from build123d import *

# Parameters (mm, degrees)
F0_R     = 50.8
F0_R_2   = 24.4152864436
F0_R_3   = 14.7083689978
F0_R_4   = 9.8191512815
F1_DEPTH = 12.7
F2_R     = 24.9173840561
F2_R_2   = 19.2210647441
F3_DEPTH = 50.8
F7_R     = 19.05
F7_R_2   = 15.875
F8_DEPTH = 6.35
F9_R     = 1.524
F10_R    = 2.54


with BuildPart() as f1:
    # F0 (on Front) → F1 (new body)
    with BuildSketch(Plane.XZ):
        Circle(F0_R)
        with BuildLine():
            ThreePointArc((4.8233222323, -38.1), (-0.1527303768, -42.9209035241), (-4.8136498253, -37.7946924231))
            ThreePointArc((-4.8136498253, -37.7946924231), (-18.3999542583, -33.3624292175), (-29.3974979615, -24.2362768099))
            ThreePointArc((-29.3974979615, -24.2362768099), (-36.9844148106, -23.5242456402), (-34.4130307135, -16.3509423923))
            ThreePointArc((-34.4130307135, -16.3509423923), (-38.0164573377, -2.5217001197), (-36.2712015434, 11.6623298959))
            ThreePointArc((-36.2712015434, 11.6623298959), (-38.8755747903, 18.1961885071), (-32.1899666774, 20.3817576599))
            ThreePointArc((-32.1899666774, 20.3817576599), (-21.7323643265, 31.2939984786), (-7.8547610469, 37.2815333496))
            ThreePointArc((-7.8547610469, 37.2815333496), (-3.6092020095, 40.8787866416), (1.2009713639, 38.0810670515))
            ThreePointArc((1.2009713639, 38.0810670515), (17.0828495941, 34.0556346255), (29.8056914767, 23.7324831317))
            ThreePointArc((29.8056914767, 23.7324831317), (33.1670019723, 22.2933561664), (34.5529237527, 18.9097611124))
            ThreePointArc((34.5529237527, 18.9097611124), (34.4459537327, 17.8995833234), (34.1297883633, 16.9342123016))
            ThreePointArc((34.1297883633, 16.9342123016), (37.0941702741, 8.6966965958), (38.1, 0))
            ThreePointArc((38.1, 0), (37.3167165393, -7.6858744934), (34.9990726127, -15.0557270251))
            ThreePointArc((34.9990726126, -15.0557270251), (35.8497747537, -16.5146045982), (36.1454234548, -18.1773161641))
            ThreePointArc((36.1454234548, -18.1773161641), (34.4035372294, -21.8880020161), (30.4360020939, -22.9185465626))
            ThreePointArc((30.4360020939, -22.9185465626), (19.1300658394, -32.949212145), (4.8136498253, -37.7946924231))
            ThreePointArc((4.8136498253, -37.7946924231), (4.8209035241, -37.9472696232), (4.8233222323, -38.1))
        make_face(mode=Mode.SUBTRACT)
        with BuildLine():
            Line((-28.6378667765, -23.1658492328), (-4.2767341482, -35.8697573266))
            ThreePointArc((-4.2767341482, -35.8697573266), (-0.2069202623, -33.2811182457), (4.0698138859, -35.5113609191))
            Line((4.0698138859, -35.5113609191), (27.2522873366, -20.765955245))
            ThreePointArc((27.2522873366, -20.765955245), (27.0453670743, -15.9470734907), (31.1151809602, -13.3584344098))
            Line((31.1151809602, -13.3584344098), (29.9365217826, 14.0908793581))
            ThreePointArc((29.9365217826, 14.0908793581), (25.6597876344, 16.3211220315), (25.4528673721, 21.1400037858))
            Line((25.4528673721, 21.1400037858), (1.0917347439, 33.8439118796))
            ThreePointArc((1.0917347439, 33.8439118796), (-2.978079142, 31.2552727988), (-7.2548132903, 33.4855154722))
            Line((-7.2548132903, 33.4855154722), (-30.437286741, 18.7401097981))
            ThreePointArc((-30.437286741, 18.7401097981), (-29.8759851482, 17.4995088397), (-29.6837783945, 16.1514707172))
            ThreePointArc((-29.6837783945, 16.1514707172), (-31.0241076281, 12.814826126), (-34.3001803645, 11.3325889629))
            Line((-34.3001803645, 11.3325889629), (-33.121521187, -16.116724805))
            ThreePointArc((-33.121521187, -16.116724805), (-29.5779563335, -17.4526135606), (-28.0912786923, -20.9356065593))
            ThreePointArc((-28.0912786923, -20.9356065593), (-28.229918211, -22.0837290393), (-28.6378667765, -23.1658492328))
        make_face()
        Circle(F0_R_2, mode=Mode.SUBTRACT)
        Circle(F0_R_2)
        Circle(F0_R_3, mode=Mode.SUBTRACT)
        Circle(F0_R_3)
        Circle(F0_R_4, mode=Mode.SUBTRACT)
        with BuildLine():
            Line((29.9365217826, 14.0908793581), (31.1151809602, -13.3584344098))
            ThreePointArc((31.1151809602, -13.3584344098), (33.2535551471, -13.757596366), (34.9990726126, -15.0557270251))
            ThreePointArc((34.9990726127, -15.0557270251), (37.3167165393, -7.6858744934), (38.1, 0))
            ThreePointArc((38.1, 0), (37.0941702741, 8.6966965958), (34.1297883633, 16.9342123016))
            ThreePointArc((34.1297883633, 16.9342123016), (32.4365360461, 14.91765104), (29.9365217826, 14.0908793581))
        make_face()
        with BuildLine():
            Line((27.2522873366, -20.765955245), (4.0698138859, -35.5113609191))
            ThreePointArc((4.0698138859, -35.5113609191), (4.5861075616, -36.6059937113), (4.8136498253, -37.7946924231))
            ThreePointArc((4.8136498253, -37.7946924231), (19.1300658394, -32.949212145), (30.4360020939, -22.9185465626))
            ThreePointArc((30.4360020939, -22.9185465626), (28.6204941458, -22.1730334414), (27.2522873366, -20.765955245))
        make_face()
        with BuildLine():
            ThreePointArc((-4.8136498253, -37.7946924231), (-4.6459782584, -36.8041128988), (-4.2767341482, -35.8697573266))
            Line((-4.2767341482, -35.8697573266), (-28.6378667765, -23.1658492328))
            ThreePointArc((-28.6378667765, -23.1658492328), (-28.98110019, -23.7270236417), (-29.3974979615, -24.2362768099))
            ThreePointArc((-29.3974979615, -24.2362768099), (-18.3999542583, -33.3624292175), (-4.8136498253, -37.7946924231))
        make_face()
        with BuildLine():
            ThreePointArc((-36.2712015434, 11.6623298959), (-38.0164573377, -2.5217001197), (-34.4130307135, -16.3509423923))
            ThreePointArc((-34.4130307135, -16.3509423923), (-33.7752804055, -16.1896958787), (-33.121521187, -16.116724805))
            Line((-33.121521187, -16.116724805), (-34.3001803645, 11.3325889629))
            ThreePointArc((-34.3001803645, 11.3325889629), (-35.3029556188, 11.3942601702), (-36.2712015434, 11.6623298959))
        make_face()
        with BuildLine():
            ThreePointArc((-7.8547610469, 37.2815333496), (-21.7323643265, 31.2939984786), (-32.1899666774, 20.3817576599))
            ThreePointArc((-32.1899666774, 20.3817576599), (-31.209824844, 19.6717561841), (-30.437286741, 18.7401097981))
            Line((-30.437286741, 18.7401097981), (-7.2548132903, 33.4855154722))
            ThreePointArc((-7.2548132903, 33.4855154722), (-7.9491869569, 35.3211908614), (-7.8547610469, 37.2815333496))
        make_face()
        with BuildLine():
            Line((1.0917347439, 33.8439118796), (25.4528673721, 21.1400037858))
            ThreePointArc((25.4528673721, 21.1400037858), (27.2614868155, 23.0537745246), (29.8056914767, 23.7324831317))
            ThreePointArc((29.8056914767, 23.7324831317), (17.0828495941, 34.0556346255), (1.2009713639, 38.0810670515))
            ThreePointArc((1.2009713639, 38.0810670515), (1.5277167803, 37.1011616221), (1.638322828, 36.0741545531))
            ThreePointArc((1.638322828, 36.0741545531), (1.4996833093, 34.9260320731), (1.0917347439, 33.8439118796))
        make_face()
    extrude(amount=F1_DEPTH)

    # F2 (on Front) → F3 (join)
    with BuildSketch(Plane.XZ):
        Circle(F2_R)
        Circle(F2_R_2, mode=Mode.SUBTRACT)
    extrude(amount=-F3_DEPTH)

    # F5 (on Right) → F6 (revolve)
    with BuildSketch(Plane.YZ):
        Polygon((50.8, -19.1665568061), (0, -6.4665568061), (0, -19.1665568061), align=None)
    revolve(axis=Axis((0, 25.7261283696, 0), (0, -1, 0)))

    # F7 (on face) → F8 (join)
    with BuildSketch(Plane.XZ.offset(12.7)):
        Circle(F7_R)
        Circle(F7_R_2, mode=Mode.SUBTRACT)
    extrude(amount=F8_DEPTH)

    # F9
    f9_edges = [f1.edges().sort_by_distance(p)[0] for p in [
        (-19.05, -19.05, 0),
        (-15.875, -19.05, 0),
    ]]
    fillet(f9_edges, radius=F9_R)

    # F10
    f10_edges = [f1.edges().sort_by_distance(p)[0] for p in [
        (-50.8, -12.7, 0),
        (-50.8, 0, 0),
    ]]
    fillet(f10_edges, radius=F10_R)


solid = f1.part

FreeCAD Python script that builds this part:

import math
import FreeCAD as App
import Part
import Sketcher
from FreeCAD import Vector
Q = App.Units.Quantity


def edges_at(feature, points):
    """Names of the edges that pass closest to the given points."""
    edges = feature.Shape.Edges
    near = lambda p: min(range(len(edges)), key=lambda i: edges[i].distToShape(Part.Vertex(*p))[0])
    return sorted({f"Edge{near(p) + 1}" for p in points})

doc = App.newDocument("Part")
body = doc.addObject("PartDesign::Body", "Body")

sketch1 = doc.addObject("Sketcher::SketchObject", "Sketch")
body.addObject(sketch1)
sketch1.AttachmentSupport = (doc.XZ_Plane, [""])
sketch1.MapMode = "FlatFace"
sketch1.addGeometry(Part.Circle(Vector(0, 0, 0), Vector(0, 0, 1), 50.8), False)
sketch1.addGeometry(Part.ArcOfCircle(Part.Circle(Vector(0, -38.1, 0), Vector(0, 0, 1), 4.823322), math.radians(0), math.radians(3.629145)), False)
sketch1.addGeometry(Part.ArcOfCircle(Part.Circle(Vector(0, -38.1, 0), Vector(0, 0, 1), 4.823322), math.radians(176.370855), math.radians(360)), False)
sketch1.addGeometry(Part.ArcOfCircle(Part.Circle(Vector(0, -38.1, 0), Vector(0, 0, 1), 4.823322), math.radians(152.45874), math.radians(176.370855)), False)
sketch1.addGeometry(Part.ArcOfCircle(Part.Circle(Vector(0, -38.1, 0), Vector(0, 0, 1), 4.823322), math.radians(32.45874), math.radians(152.45874)), False)
sketch1.addGeometry(Part.ArcOfCircle(Part.Circle(Vector(0, -38.1, 0), Vector(0, 0, 1), 4.823322), math.radians(3.629145), math.radians(32.45874)), False)
sketch1.addGeometry(Part.ArcOfCircle(Part.Circle(Vector(-32.914601, -20.935607, 0), Vector(0, 0, 1), 4.823322), math.radians(108.099216), math.radians(316.818265)), False)
sketch1.addGeometry(Part.ArcOfCircle(Part.Circle(Vector(-32.914601, -20.935607, 0), Vector(0, 0, 1), 4.823322), math.radians(92.45874), math.radians(108.099216)), False)
sketch1.addGeometry(Part.ArcOfCircle(Part.Circle(Vector(-32.914601, -20.935607, 0), Vector(0, 0, 1), 4.823322), math.radians(0), math.radians(92.45874)), False)
sketch1.addGeometry(Part.ArcOfCircle(Part.Circle(Vector(-32.914601, -20.935607, 0), Vector(0, 0, 1), 4.823322), math.radians(-27.54126), math.radians(0)), False)
sketch1.addGeometry(Part.ArcOfCircle(Part.Circle(Vector(-32.914601, -20.935607, 0), Vector(0, 0, 1), 4.823322), math.radians(-43.181735), math.radians(-27.54126)), False)
sketch1.addGeometry(Part.ArcOfCircle(Part.Circle(Vector(-34.507101, 16.151471, 0), Vector(0, 0, 1), 4.823322), math.radians(61.288335), math.radians(248.546626)), False)
sketch1.addGeometry(Part.ArcOfCircle(Part.Circle(Vector(-34.507101, 16.151471, 0), Vector(0, 0, 1), 4.823322), math.radians(32.45874), math.radians(61.288335)), False)
sketch1.addGeometry(Part.ArcOfCircle(Part.Circle(Vector(-34.507101, 16.151471, 0), Vector(0, 0, 1), 4.823322), math.radians(0), math.radians(32.45874)), False)
sketch1.addGeometry(Part.ArcOfCircle(Part.Circle(Vector(-34.507101, 16.151471, 0), Vector(0, 0, 1), 4.823322), math.radians(-87.54126), math.radians(0)), False)
sketch1.addGeometry(Part.ArcOfCircle(Part.Circle(Vector(-34.507101, 16.151471, 0), Vector(0, 0, 1), 4.823322), math.radians(-111.453374), math.radians(-87.54126)), False)
sketch1.addGeometry(Part.ArcOfCircle(Part.Circle(Vector(-3.184999, 36.074155, 0), Vector(0, 0, 1), 4.823322), math.radians(24.587669), math.radians(165.503492)), False)
sketch1.addGeometry(Part.ArcOfCircle(Part.Circle(Vector(-3.184999, 36.074155, 0), Vector(0, 0, 1), 4.823322), math.radians(0), math.radians(24.587669)), False)
sketch1.addGeometry(Part.ArcOfCircle(Part.Circle(Vector(-3.184999, 36.074155, 0), Vector(0, 0, 1), 4.823322), math.radians(-27.54126), math.radians(0)), False)
sketch1.addGeometry(Part.ArcOfCircle(Part.Circle(Vector(-3.184999, 36.074155, 0), Vector(0, 0, 1), 4.823322), math.radians(-147.54126), math.radians(-27.54126)), False)
sketch1.addGeometry(Part.ArcOfCircle(Part.Circle(Vector(-3.184999, 36.074155, 0), Vector(0, 0, 1), 4.823322), math.radians(165.503492), math.radians(212.45874)), False)
sketch1.addGeometry(Part.ArcOfCircle(Part.Circle(Vector(29.729602, 18.909761, 0), Vector(0, 0, 1), 4.823322), math.radians(0), math.radians(89.096097)), False)
sketch1.addGeometry(Part.ArcOfCircle(Part.Circle(Vector(29.729602, 18.909761, 0), Vector(0, 0, 1), 4.823322), math.radians(-24.178616), math.radians(0)), False)
sketch1.addGeometry(Part.ArcOfCircle(Part.Circle(Vector(29.729602, 18.909761, 0), Vector(0, 0, 1), 4.823322), math.radians(-87.54126), math.radians(-24.178616)), False)
sketch1.addGeometry(Part.ArcOfCircle(Part.Circle(Vector(29.729602, 18.909761, 0), Vector(0, 0, 1), 4.823322), math.radians(89.096097), math.radians(272.45874)), False)
sketch1.addGeometry(Part.ArcOfCircle(Part.Circle(Vector(31.322101, -18.177316, 0), Vector(0, 0, 1), 4.823322), math.radians(92.45874), math.radians(212.45874)), False)
sketch1.addGeometry(Part.ArcOfCircle(Part.Circle(Vector(31.322101, -18.177316, 0), Vector(0, 0, 1), 4.823322), math.radians(40.329812), math.radians(92.45874)), False)
sketch1.addGeometry(Part.ArcOfCircle(Part.Circle(Vector(31.322101, -18.177316, 0), Vector(0, 0, 1), 4.823322), math.radians(0), math.radians(40.329812)), False)
sketch1.addGeometry(Part.ArcOfCircle(Part.Circle(Vector(31.322101, -18.177316, 0), Vector(0, 0, 1), 4.823322), math.radians(-100.586012), math.radians(0)), False)
sketch1.addGeometry(Part.ArcOfCircle(Part.Circle(Vector(31.322101, -18.177316, 0), Vector(0, 0, 1), 4.823322), math.radians(-147.54126), math.radians(-100.586012)), False)
sketch1.addGeometry(Part.Circle(Vector(0, 0, 0), Vector(0, 0, 1), 9.819151), False)
sketch1.addConstraint(Sketcher.Constraint("Tangent", 1, 1, 2, 2))
sketch1.addConstraint(Sketcher.Constraint("Tangent", 2, 1, 3, 2))
sketch1.addConstraint(Sketcher.Constraint("Tangent", 3, 1, 4, 2))
sketch1.addConstraint(Sketcher.Constraint("Tangent", 4, 1, 5, 2))
sketch1.addConstraint(Sketcher.Constraint("Tangent", 5, 1, 1, 2))
sketch1.addConstraint(Sketcher.Constraint("Tangent", 6, 1, 7, 2))
sketch1.addConstraint(Sketcher.Constraint("Tangent", 7, 1, 8, 2))
sketch1.addConstraint(Sketcher.Constraint("Tangent", 8, 1, 9, 2))
sketch1.addConstraint(Sketcher.Constraint("Tangent", 9, 1, 10, 2))
sketch1.addConstraint(Sketcher.Constraint("Tangent", 10, 1, 6, 2))
sketch1.addConstraint(Sketcher.Constraint("Tangent", 11, 1, 12, 2))
sketch1.addConstraint(Sketcher.Constraint("Tangent", 12, 1, 13, 2))
sketch1.addConstraint(Sketcher.Constraint("Tangent", 13, 1, 14, 2))
sketch1.addConstraint(Sketcher.Constraint("Tangent", 14, 1, 15, 2))
sketch1.addConstraint(Sketcher.Constraint("Tangent", 15, 1, 11, 2))
sketch1.addConstraint(Sketcher.Constraint("Tangent", 16, 1, 17, 2))
sketch1.addConstraint(Sketcher.Constraint("Tangent", 17, 1, 18, 2))
sketch1.addConstraint(Sketcher.Constraint("Tangent", 18, 1, 19, 2))
sketch1.addConstraint(Sketcher.Constraint("Tangent", 19, 1, 20, 2))
sketch1.addConstraint(Sketcher.Constraint("Tangent", 20, 1, 16, 2))
sketch1.addConstraint(Sketcher.Constraint("Tangent", 21, 1, 22, 2))
sketch1.addConstraint(Sketcher.Constraint("Tangent", 22, 1, 23, 2))
sketch1.addConstraint(Sketcher.Constraint("Tangent", 23, 1, 24, 2))
sketch1.addConstraint(Sketcher.Constraint("Tangent", 24, 1, 21, 2))
sketch1.addConstraint(Sketcher.Constraint("Tangent", 25, 1, 26, 2))
sketch1.addConstraint(Sketcher.Constraint("Tangent", 26, 1, 27, 2))
sketch1.addConstraint(Sketcher.Constraint("Tangent", 27, 1, 28, 2))
sketch1.addConstraint(Sketcher.Constraint("Tangent", 28, 1, 29, 2))
sketch1.addConstraint(Sketcher.Constraint("Tangent", 29, 1, 25, 2))
sketch1.addConstraint(Sketcher.Constraint("Coincident", 0, 3, -1, 1))
sketch1.addConstraint(Sketcher.Constraint("Coincident", 30, 3, -1, 1))
sketch1.addConstraint(Sketcher.Constraint("Coincident", 3, 3, 1, 3))
sketch1.addConstraint(Sketcher.Constraint("Coincident", 8, 3, 6, 3))
sketch1.addConstraint(Sketcher.Constraint("Coincident", 13, 3, 11, 3))
sketch1.addConstraint(Sketcher.Constraint("Coincident", 18, 3, 16, 3))
sketch1.addConstraint(Sketcher.Constraint("Coincident", 27, 3, 25, 3))
sketch1.addConstraint(Sketcher.Constraint("Equal", 5, 6))
sketch1.addConstraint(Sketcher.Constraint("Equal", 10, 11))
sketch1.addConstraint(Sketcher.Constraint("Equal", 15, 16))
sketch1.addConstraint(Sketcher.Constraint("Equal", 20, 21))
sketch1.addConstraint(Sketcher.Constraint("Equal", 21, 22))
sketch1.addConstraint(Sketcher.Constraint("Equal", 24, 25))
sketch1.addConstraint(Sketcher.Constraint("Symmetric", 2, 1, 5, 1, -2))
sketch1.addConstraint(Sketcher.Constraint("Horizontal", 5, 3, 1, 1))
sketch1.addConstraint(Sketcher.Constraint("Horizontal", 10, 3, 8, 1))
sketch1.addConstraint(Sketcher.Constraint("Horizontal", 15, 3, 13, 1))
sketch1.addConstraint(Sketcher.Constraint("Horizontal", 20, 3, 17, 1))
sketch1.addConstraint(Sketcher.Constraint("Horizontal", 24, 3, 21, 1))
sketch1.addConstraint(Sketcher.Constraint("Horizontal", 29, 3, 27, 1))
sketch1.addConstraint(Sketcher.Constraint("Diameter", 0, Q("4 in")))
sketch1.addConstraint(Sketcher.Constraint("DistanceY", 1, 3, -1, 1, Q("1.5 in")))
sketch1.addConstraint(Sketcher.Constraint("DistanceX", 15, 1, -1, 1, Q("1.4280001 in")))
sketch1.addConstraint(Sketcher.Constraint("Diameter", 30, 19.638303))
sketch1.addConstraint(Sketcher.Constraint("Radius", 1, 4.823322))
sketch1.addConstraint(Sketcher.Constraint("DistanceX", 6, 3, -1, 1, 32.914601))
sketch1.addConstraint(Sketcher.Constraint("DistanceX", 11, 3, -1, 1, 34.507101))
sketch1.addConstraint(Sketcher.Constraint("DistanceX", 16, 3, -1, 1, 3.184999))
sketch1.addConstraint(Sketcher.Constraint("DistanceX", -1, 1, 21, 3, 29.729602))
sketch1.addConstraint(Sketcher.Constraint("DistanceX", -1, 1, 25, 3, 31.322101))
sketch1.addConstraint(Sketcher.Constraint("DistanceX", 28, 1, 26, 3, 0.886099))
sketch1.addConstraint(Sketcher.Constraint("DistanceY", -1, 1, 11, 3, 16.151471))
sketch1.addConstraint(Sketcher.Constraint("DistanceY", -1, 1, 21, 3, 18.909761))
sketch1.addConstraint(Sketcher.Constraint("DistanceX", 2, 1, -1, 1, 4.81365))
sketch1.addConstraint(Sketcher.Constraint("DistanceY", 4, 1, -1, 1, 35.511361))
sketch1.addConstraint(Sketcher.Constraint("DistanceX", 6, 1, -1, 1, 34.413031))
sketch1.addConstraint(Sketcher.Constraint("DistanceX", 7, 1, -1, 1, 33.121521))
sketch1.addConstraint(Sketcher.Constraint("DistanceY", 9, 1, -1, 1, 23.165849))
sketch1.addConstraint(Sketcher.Constraint("DistanceY", -1, 1, 12, 1, 18.74011))
sketch1.addConstraint(Sketcher.Constraint("DistanceX", 14, 1, -1, 1, 34.30018))
sketch1.addConstraint(Sketcher.Constraint("DistanceX", -1, 1, 16, 1, 1.200971))
sketch1.addConstraint(Sketcher.Constraint("DistanceY", -1, 1, 18, 1, 33.843912))
sketch1.addConstraint(Sketcher.Constraint("DistanceX", 20, 1, -1, 1, 7.854761))
sketch1.addConstraint(Sketcher.Constraint("DistanceX", -1, 1, 22, 1, 34.129788))
sketch1.addConstraint(Sketcher.Constraint("DistanceX", -1, 1, 23, 1, 29.936522))
sketch1.addConstraint(Sketcher.Constraint("DistanceX", -1, 1, 24, 1, 29.805691))
sketch1.addConstraint(Sketcher.Constraint("DistanceX", -1, 1, 25, 1, 31.115181))
sketch1.addConstraint(Sketcher.Constraint("DistanceX", 9, 1, 8, 1, 0.546588))
sketch1.addConstraint(Sketcher.Constraint("DistanceX", 10, 1, 9, 1, 0.759631))
sketch1.addConstraint(Sketcher.Constraint("DistanceX", 11, 1, 12, 1, 1.75268))
sketch1.addConstraint(Sketcher.Constraint("DistanceX", 18, 1, 17, 1, 0.546588))
sketch1.addConstraint(Sketcher.Constraint("DistanceY", 19, 1, 18, 3, 2.588639))
sketch1.addConstraint(Sketcher.Constraint("DistanceX", 25, 1, 26, 1, 3.883892))
sketch1.addConstraint(Sketcher.Constraint("DistanceY", 28, 1, 29, 1, 2.152591))
sketch1.addConstraint(Sketcher.Constraint("DistanceY", 25, 3, -1, 1, 18.177316))
sketch1.addConstraint(Sketcher.Constraint("DistanceX", 3, 1, -1, 1, 4.276734))
pad1 = doc.addObject("PartDesign::Pad", "Pad")
body.addObject(pad1)
pad1.Profile = sketch1
pad1.Length = Q("0.5 in")

sketch2 = doc.addObject("Sketcher::SketchObject", "Sketch001")
body.addObject(sketch2)
sketch2.AttachmentSupport = (doc.XZ_Plane, [""])
sketch2.MapMode = "FlatFace"
sketch2.addGeometry(Part.Circle(Vector(0, 0, 0), Vector(0, 0, 1), 24.917384), False)
sketch2.addGeometry(Part.Circle(Vector(0, 0, 0), Vector(0, 0, 1), 19.221065), False)
sketch2.addConstraint(Sketcher.Constraint("Coincident", 0, 3, -1, 1))
sketch2.addConstraint(Sketcher.Constraint("Coincident", 1, 3, -1, 1))
sketch2.addConstraint(Sketcher.Constraint("Diameter", 0, 49.834768))
sketch2.addConstraint(Sketcher.Constraint("Diameter", 1, 38.442129))
pad2 = doc.addObject("PartDesign::Pad", "Pad001")
body.addObject(pad2)
pad2.Profile = sketch2
pad2.Length = Q("2 in")
pad2.Reversed = True

sketch3 = doc.addObject("Sketcher::SketchObject", "Sketch002")
body.addObject(sketch3)
sketch3.AttachmentSupport = (doc.YZ_Plane, [""])
sketch3.MapMode = "FlatFace"
sketch3.addGeometry(Part.LineSegment(Vector(50.8, -19.166557, 0), Vector(0, -6.466557, 0)), False)
sketch3.addGeometry(Part.LineSegment(Vector(0, -6.466557, 0), Vector(0, -19.166557, 0)), False)
sketch3.addGeometry(Part.LineSegment(Vector(0, -19.166557, 0), Vector(50.8, -19.166557, 0)), False)
sketch3.addConstraint(Sketcher.Constraint("Coincident", 0, 2, 1, 1))
sketch3.addConstraint(Sketcher.Constraint("Coincident", 1, 2, 2, 1))
sketch3.addConstraint(Sketcher.Constraint("Coincident", 2, 2, 0, 1))
sketch3.addConstraint(Sketcher.Constraint("Vertical", 1))
sketch3.addConstraint(Sketcher.Constraint("Horizontal", 2))
sketch3.addConstraint(Sketcher.Constraint("PointOnObject", 0, 2, -2))
sketch3.addConstraint(Sketcher.Constraint("DistanceX", 2, 1, 2, 2, Q("2 in")))
sketch3.addConstraint(Sketcher.Constraint("DistanceY", 1, 2, 1, 1, Q("0.5 in")))
sketch3.addConstraint(Sketcher.Constraint("DistanceY", 0, 2, -1, 1, 6.466557))
revolution = doc.addObject("PartDesign::Revolution", "Revolution")
body.addObject(revolution)
revolution.Profile = sketch3
revolution.ReferenceAxis = (sketch3, ["H_Axis"])
revolution.Angle = 360

sketch4 = doc.addObject("Sketcher::SketchObject", "Sketch003")
body.addObject(sketch4)
sketch4.AttachmentSupport = (doc.XZ_Plane, [""])
sketch4.MapMode = "FlatFace"
sketch4.AttachmentOffset = App.Placement(Vector(0, 0, 0.5 * 25.4), App.Rotation())
sketch4.addGeometry(Part.Circle(Vector(0, 0, 0), Vector(0, 0, 1), 19.05), False)
sketch4.addGeometry(Part.Circle(Vector(0, 0, 0), Vector(0, 0, 1), 15.875), False)
sketch4.addConstraint(Sketcher.Constraint("Coincident", 0, 3, -1, 1))
sketch4.addConstraint(Sketcher.Constraint("Coincident", 1, 3, -1, 1))
sketch4.addConstraint(Sketcher.Constraint("Diameter", 0, Q("1.5 in")))
sketch4.addConstraint(Sketcher.Constraint("Diameter", 1, Q("1.25 in")))
pad3 = doc.addObject("PartDesign::Pad", "Pad002")
body.addObject(pad3)
pad3.Profile = sketch4
pad3.Length = Q("0.25 in")
doc.recompute()

fillet = doc.addObject("PartDesign::Fillet", "Fillet")
body.addObject(fillet)
fillet.Base = (pad3, edges_at(pad3, [(-19.05, -19.05, 0), (-15.875, -19.05, 0)]))
fillet.Radius = Q("0.06 in")
doc.recompute()

fillet2 = doc.addObject("PartDesign::Fillet", "Fillet001")
body.addObject(fillet2)
fillet2.Base = (fillet, edges_at(fillet, [(-50.8, -12.7, 0), (-50.8, 0, 0)]))
fillet2.Radius = Q("0.1 in")

doc.recompute()
